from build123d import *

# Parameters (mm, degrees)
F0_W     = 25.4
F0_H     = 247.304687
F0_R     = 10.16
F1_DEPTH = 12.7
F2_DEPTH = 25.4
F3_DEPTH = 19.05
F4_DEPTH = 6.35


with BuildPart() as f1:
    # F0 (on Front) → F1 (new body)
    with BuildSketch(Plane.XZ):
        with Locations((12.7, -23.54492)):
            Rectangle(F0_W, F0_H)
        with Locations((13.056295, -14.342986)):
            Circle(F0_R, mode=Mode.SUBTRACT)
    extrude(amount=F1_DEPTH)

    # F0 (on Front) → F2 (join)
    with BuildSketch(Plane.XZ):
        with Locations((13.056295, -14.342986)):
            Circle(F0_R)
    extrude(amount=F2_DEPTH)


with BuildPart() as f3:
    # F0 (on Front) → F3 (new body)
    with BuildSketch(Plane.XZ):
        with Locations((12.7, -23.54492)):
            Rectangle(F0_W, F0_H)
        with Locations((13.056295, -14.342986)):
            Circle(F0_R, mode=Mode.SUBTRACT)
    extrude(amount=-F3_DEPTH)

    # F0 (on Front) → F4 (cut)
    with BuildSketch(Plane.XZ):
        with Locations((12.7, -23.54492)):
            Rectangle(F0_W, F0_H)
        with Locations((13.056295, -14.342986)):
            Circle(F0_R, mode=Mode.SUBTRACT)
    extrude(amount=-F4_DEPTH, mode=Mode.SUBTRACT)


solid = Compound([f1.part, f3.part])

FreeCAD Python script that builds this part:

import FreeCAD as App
import Part
import Sketcher
Q = App.Units.Quantity


def add_polygon(sketch, points):
    """Adds a closed chain of lines whose ends are joined by coincident constraints."""
    first, n = sketch.GeometryCount, len(points)
    for a, b in zip(points, points[1:] + points[:1]):
        sketch.addGeometry(Part.LineSegment(App.Vector(*a, 0), App.Vector(*b, 0)), False)
    for i in range(n):
        sketch.addConstraint(Sketcher.Constraint("Coincident", first + i, 2, first + (i + 1) % n, 1))

doc = App.newDocument("Part")
body = doc.addObject("PartDesign::Body", "Body")

# Sketch on XZ plane
sketch1 = doc.addObject("Sketcher::SketchObject", "Sketch")
body.addObject(sketch1)
sketch1.AttachmentSupport = (doc.XZ_Plane, [""])
sketch1.MapMode = "FlatFace"
add_polygon(sketch1, [(0, 100), (0, -147), (25, -147), (25, 100)])  # lines 0-3
sketch1.addGeometry(Part.Circle(App.Vector(13, -14, 0), App.Vector(0, 0, 1), 10), False)  # 4
sketch1.addConstraint(Sketcher.Constraint("Vertical", 0))
sketch1.addConstraint(Sketcher.Constraint("Horizontal", 1))
sketch1.addConstraint(Sketcher.Constraint("Vertical", 2))
sketch1.addConstraint(Sketcher.Constraint("Horizontal", 3))
sketch1.addConstraint(Sketcher.Constraint("PointOnObject", 0, 2, -2))
sketch1.addConstraint(Sketcher.Constraint("Diameter", 4, Q("0.8 in")))
sketch1.addConstraint(Sketcher.Constraint("DistanceX", 1, 1, 1, 2, Q("1 in")))
sketch1.addConstraint(Sketcher.Constraint("DistanceY", 0, 2, 0, 1, 247.304687))
sketch1.addConstraint(Sketcher.Constraint("DistanceY", 4, 3, 2, 2, 114.450409))
sketch1.addConstraint(Sketcher.Constraint("DistanceX", -1, 1, 4, 3, 13.056295))
sketch1.addConstraint(Sketcher.Constraint("DistanceY", 4, 3, -1, 1, 14.342986))
pad1 = doc.addObject("PartDesign::Pad", "Pad")
body.addObject(pad1)
pad1.Profile = sketch1
pad1.Length = Q("0.5 in")

# Sketch on XZ plane
sketch2 = doc.addObject("Sketcher::SketchObject", "Sketch001")
body.addObject(sketch2)
sketch2.AttachmentSupport = (doc.XZ_Plane, [""])
sketch2.MapMode = "FlatFace"
sketch2.addGeometry(Part.Circle(App.Vector(13, -14, 0), App.Vector(0, 0, 1), 10), False)
sketch2.addConstraint(Sketcher.Constraint("Diameter", 0, Q("0.8 in")))
sketch2.addConstraint(Sketcher.Constraint("DistanceX", -1, 1, 0, 3, 13.056295))
sketch2.addConstraint(Sketcher.Constraint("DistanceY", 0, 3, -1, 1, 14.342986))
pad2 = doc.addObject("PartDesign::Pad", "Pad001")
body.addObject(pad2)
pad2.Profile = sketch2
pad2.Length = Q("1 in")
body2 = doc.addObject("PartDesign::Body", "Body001")

# Sketch on XZ plane
sketch3 = doc.addObject("Sketcher::SketchObject", "Sketch002")
body2.addObject(sketch3)
sketch3.AttachmentSupport = (doc.getObject("XZ_Plane001"), [""])
sketch3.MapMode = "FlatFace"
add_polygon(sketch3, [(0, 100), (0, -147), (25, -147), (25, 100)])  # lines 0-3
sketch3.addGeometry(Part.Circle(App.Vector(13, -14, 0), App.Vector(0, 0, 1), 10), False)  # 4
sketch3.addConstraint(Sketcher.Constraint("Vertical", 0))
sketch3.addConstraint(Sketcher.Constraint("Horizontal", 1))
sketch3.addConstraint(Sketcher.Constraint("Vertical", 2))
sketch3.addConstraint(Sketcher.Constraint("Horizontal", 3))
sketch3.addConstraint(Sketcher.Constraint("PointOnObject", 0, 2, -2))
sketch3.addConstraint(Sketcher.Constraint("Diameter", 4, Q("0.8 in")))
sketch3.addConstraint(Sketcher.Constraint("DistanceX", 1, 1, 1, 2, Q("1 in")))
sketch3.addConstraint(Sketcher.Constraint("DistanceY", 0, 2, 0, 1, 247.304687))
sketch3.addConstraint(Sketcher.Constraint("DistanceY", 4, 3, 2, 2, 114.450409))
sketch3.addConstraint(Sketcher.Constraint("DistanceX", -1, 1, 4, 3, 13.056295))
sketch3.addConstraint(Sketcher.Constraint("DistanceY", 4, 3, -1, 1, 14.342986))
pad3 = doc.addObject("PartDesign::Pad", "Pad002")
body2.addObject(pad3)
pad3.Profile = sketch3
pad3.Length = Q("0.75 in")
pad3.Reversed = True

# Sketch on XZ plane
sketch4 = doc.addObject("Sketcher::SketchObject", "Sketch003")
body2.addObject(sketch4)
sketch4.AttachmentSupport = (doc.getObject("XZ_Plane001"), [""])
sketch4.MapMode = "FlatFace"
add_polygon(sketch4, [(0, 100), (0, -147), (25, -147), (25, 100)])  # lines 0-3
sketch4.addGeometry(Part.Circle(App.Vector(13, -14, 0), App.Vector(0, 0, 1), 10), False)  # 4
sketch4.addConstraint(Sketcher.Constraint("Vertical", 0))
sketch4.addConstraint(Sketcher.Constraint("Horizontal", 1))
sketch4.addConstraint(Sketcher.Constraint("Vertical", 2))
sketch4.addConstraint(Sketcher.Constraint("Horizontal", 3))
sketch4.addConstraint(Sketcher.Constraint("PointOnObject", 0, 2, -2))
sketch4.addConstraint(Sketcher.Constraint("Diameter", 4, Q("0.8 in")))
sketch4.addConstraint(Sketcher.Constraint("DistanceX", 1, 1, 1, 2, Q("1 in")))
sketch4.addConstraint(Sketcher.Constraint("DistanceY", 0, 2, 0, 1, 247.304687))
sketch4.addConstraint(Sketcher.Constraint("DistanceY", 4, 3, 2, 2, 114.450409))
sketch4.addConstraint(Sketcher.Constraint("DistanceX", -1, 1, 4, 3, 13.056295))
sketch4.addConstraint(Sketcher.Constraint("DistanceY", 4, 3, -1, 1, 14.342986))
pocket1 = doc.addObject("PartDesign::Pocket", "Pocket")
body2.addObject(pocket1)
pocket1.Profile = sketch4
pocket1.Length = Q("0.25 in")

doc.recompute()
